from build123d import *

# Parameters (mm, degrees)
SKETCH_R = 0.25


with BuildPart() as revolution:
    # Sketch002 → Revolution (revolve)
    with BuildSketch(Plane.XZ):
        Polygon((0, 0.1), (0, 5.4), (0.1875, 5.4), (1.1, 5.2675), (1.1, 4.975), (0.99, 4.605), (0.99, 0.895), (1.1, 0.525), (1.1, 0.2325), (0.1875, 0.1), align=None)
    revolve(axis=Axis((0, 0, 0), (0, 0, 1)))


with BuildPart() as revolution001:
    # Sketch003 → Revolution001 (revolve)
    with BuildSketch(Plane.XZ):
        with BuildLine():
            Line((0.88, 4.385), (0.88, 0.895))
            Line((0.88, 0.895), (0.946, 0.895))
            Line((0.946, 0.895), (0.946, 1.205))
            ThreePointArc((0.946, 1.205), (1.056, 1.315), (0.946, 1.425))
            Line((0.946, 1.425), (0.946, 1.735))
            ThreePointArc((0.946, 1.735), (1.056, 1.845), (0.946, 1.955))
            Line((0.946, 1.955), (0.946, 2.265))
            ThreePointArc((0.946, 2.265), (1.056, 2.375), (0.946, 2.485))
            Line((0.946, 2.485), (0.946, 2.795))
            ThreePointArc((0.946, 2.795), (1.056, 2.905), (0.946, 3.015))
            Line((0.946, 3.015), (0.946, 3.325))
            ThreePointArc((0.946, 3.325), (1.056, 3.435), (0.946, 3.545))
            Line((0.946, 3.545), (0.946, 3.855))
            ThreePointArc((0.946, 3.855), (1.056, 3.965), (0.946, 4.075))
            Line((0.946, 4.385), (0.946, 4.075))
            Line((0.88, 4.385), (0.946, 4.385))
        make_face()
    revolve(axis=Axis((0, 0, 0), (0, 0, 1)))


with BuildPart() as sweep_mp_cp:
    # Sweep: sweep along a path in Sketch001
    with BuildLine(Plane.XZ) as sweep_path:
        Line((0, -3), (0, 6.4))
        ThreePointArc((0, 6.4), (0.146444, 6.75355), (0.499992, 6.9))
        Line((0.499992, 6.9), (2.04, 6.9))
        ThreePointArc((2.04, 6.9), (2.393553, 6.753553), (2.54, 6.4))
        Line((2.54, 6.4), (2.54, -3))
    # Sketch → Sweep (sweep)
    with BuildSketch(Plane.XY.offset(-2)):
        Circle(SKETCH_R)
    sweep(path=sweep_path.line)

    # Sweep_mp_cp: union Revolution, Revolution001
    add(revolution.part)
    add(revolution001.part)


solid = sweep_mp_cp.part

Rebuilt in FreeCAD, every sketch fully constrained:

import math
import FreeCAD as App
import Part
import Sketcher
from FreeCAD import Vector
Q = App.Units.Quantity

doc = App.newDocument("Part")
body = doc.addObject("PartDesign::Body", "Body")

# Sketch on XZ plane
sketch1 = body.newObject("Sketcher::SketchObject", "Sketch")
sketch1.AttachmentSupport = (doc.getObject("XZ_Plane"), [""])
sketch1.MapMode = "FlatFace"
sketch1.addGeometry([
    Part.LineSegment(Vector(0, 5.4, 0), Vector(0, 0.1, 0)),  # 0
    Part.LineSegment(Vector(0, 0.1, 0), Vector(0.1875, 0.1, 0)),  # 1
    Part.LineSegment(Vector(0.1875, 0.1, 0), Vector(1.1, 0.2325, 0)),  # 2
    Part.LineSegment(Vector(1.1, 0.2325, 0), Vector(1.1, 0.525, 0)),  # 3
    Part.LineSegment(Vector(1.1, 0.525, 0), Vector(0.99, 0.895, 0)),  # 4
    Part.LineSegment(Vector(0.99, 0.895, 0), Vector(0.99, 4.605, 0)),  # 5
    Part.LineSegment(Vector(0.99, 4.605, 0), Vector(1.1, 4.975, 0)),  # 6
    Part.LineSegment(Vector(1.1, 4.975, 0), Vector(1.1, 5.2675, 0)),  # 7
    Part.LineSegment(Vector(1.1, 5.2675, 0), Vector(0.1875, 5.4, 0)),  # 8
    Part.LineSegment(Vector(0.1875, 5.4, 0), Vector(0, 5.4, 0)),  # 9
], False)
sketch1.addConstraint([
    Sketcher.Constraint("Coincident", 0, 2, 1, 1),
    Sketcher.Constraint("Coincident", 1, 2, 2, 1),
    Sketcher.Constraint("Coincident", 2, 2, 3, 1),
    Sketcher.Constraint("Coincident", 3, 2, 4, 1),
    Sketcher.Constraint("Coincident", 4, 2, 5, 1),
    Sketcher.Constraint("Coincident", 5, 2, 6, 1),
    Sketcher.Constraint("Coincident", 6, 2, 7, 1),
    Sketcher.Constraint("Coincident", 7, 2, 8, 1),
    Sketcher.Constraint("Coincident", 8, 2, 9, 1),
    Sketcher.Constraint("Coincident", 9, 2, 0, 1),
    Sketcher.Constraint("Vertical", 0),
    Sketcher.Constraint("Horizontal", 1),
    Sketcher.Constraint("Vertical", 3),
    Sketcher.Constraint("Vertical", 5),
    Sketcher.Constraint("Vertical", 7),
    Sketcher.Constraint("Horizontal", 9),
    Sketcher.Constraint("PointOnObject", 0, 2, -2),
    Sketcher.Constraint("Vertical", 3, 2, 6, 2),
    Sketcher.Constraint("Vertical", 1, 2, 8, 2),
    Sketcher.Constraint("Equal", 3, 7),
    Sketcher.Constraint("Equal", 4, 6),
    Sketcher.Constraint("Equal", 2, 8),
    Sketcher.Constraint("DistanceY", 0, 2, 0, 1, Q("5.3 mm")),
    Sketcher.Constraint("DistanceY", 5, 1, 5, 2, Q("3.71 mm")),
    Sketcher.Constraint("DistanceY", -1, 1, 0, 2, Q("0.1 mm")),
    Sketcher.Constraint("DistanceX", -1, 1, 2, 2, Q("1.1 mm")),
    Sketcher.Constraint("DistanceX", -1, 1, 4, 2, Q("0.99 mm")),
    Sketcher.Constraint("DistanceY", 3, 2, 4, 2, Q("0.37 mm")),
    Sketcher.Constraint("DistanceX", 1, 1, 1, 2, Q("0.1875 mm")),
    Sketcher.Constraint("DistanceY", 3, 1, 3, 2, Q("0.2925 mm")),
])
revolution = body.newObject("PartDesign::Revolution", "Revolution")
revolution.Profile = sketch1
revolution.ReferenceAxis = (sketch1, ["V_Axis"])
revolution.Angle = 360
body2 = doc.addObject("PartDesign::Body", "Body001")

# Sketch on XZ plane
sketch2 = body2.newObject("Sketcher::SketchObject", "Sketch001")
sketch2.AttachmentSupport = (doc.getObject("XZ_Plane001"), [""])
sketch2.MapMode = "FlatFace"
sketch2.addGeometry([
    Part.LineSegment(Vector(0.88, 4.385, 0), Vector(0.88, 0.895, 0)),  # 0
    Part.LineSegment(Vector(0.88, 0.895, 0), Vector(0.946, 0.895, 0)),  # 1
    Part.LineSegment(Vector(0.946, 0.895, 0), Vector(0.946, 1.205, 0)),  # 2
    Part.ArcOfCircle(Part.Circle(Vector(0.946, 1.315, 0), Vector(0, 0, 1), 0.11), math.radians(-90), math.radians(90)),  # 3
    Part.LineSegment(Vector(0.946, 1.425, 0), Vector(0.946, 1.735, 0)),  # 4
    Part.ArcOfCircle(Part.Circle(Vector(0.946, 1.845, 0), Vector(0, 0, 1), 0.11), math.radians(-90), math.radians(90)),  # 5
    Part.LineSegment(Vector(0.946, 1.955, 0), Vector(0.946, 2.265, 0)),  # 6
    Part.ArcOfCircle(Part.Circle(Vector(0.946, 2.375, 0), Vector(0, 0, 1), 0.11), math.radians(-90), math.radians(90)),  # 7
    Part.LineSegment(Vector(0.946, 2.485, 0), Vector(0.946, 2.795, 0)),  # 8
    Part.ArcOfCircle(Part.Circle(Vector(0.946, 2.905, 0), Vector(0, 0, 1), 0.11), math.radians(-90), math.radians(90)),  # 9
    Part.LineSegment(Vector(0.946, 3.015, 0), Vector(0.946, 3.325, 0)),  # 10
    Part.ArcOfCircle(Part.Circle(Vector(0.946, 3.435, 0), Vector(0, 0, 1), 0.11), math.radians(-90), math.radians(90)),  # 11
    Part.LineSegment(Vector(0.946, 3.545, 0), Vector(0.946, 3.855, 0)),  # 12
    Part.ArcOfCircle(Part.Circle(Vector(0.946, 3.965, 0), Vector(0, 0, 1), 0.11), math.radians(-90), math.radians(90)),  # 13
    Part.LineSegment(Vector(0.946, 4.075, 0), Vector(0.946, 4.385, 0)),  # 14
    Part.LineSegment(Vector(0.946, 4.385, 0), Vector(0.88, 4.385, 0)),  # 15
], False)
sketch2.addConstraint([
    Sketcher.Constraint("Coincident", 0, 2, 1, 1),
    Sketcher.Constraint("Coincident", 1, 2, 2, 1),
    Sketcher.Constraint("Coincident", 2, 2, 3, 1),
    Sketcher.Constraint("Coincident", 3, 2, 4, 1),
    Sketcher.Constraint("Coincident", 4, 2, 5, 1),
    Sketcher.Constraint("Coincident", 5, 2, 6, 1),
    Sketcher.Constraint("Coincident", 6, 2, 7, 1),
    Sketcher.Constraint("Coincident", 7, 2, 8, 1),
    Sketcher.Constraint("Coincident", 8, 2, 9, 1),
    Sketcher.Constraint("Coincident", 9, 2, 10, 1),
    Sketcher.Constraint("Coincident", 10, 2, 11, 1),
    Sketcher.Constraint("Coincident", 11, 2, 12, 1),
    Sketcher.Constraint("Coincident", 12, 2, 13, 1),
    Sketcher.Constraint("Coincident", 13, 2, 14, 1),
    Sketcher.Constraint("Coincident", 14, 2, 15, 1),
    Sketcher.Constraint("Coincident", 15, 2, 0, 1),
    Sketcher.Constraint("Vertical", 0),
    Sketcher.Constraint("Horizontal", 1),
    Sketcher.Constraint("Vertical", 2),
    Sketcher.Constraint("Vertical", 4),
    Sketcher.Constraint("Vertical", 6),
    Sketcher.Constraint("Vertical", 8),
    Sketcher.Constraint("Vertical", 10),
    Sketcher.Constraint("Vertical", 12),
    Sketcher.Constraint("Vertical", 14),
    Sketcher.Constraint("Horizontal", 15),
    Sketcher.Constraint("Equal", 3, 5),
    Sketcher.Constraint("Equal", 5, 7),
    Sketcher.Constraint("Equal", 7, 9),
    Sketcher.Constraint("Equal", 9, 11),
    Sketcher.Constraint("Equal", 11, 13),
    Sketcher.Constraint("Vertical", 3, 3, 5, 3),
    Sketcher.Constraint("Vertical", 5, 3, 7, 3),
    Sketcher.Constraint("Vertical", 7, 3, 9, 3),
    Sketcher.Constraint("Vertical", 9, 3, 11, 3),
    Sketcher.Constraint("Vertical", 11, 3, 13, 3),
    Sketcher.Constraint("Vertical", 13, 3, 1, 2),
    Sketcher.Constraint("Vertical", 2, 2, 3, 2),
    Sketcher.Constraint("Vertical", 4, 2, 5, 2),
    Sketcher.Constraint("Vertical", 6, 2, 7, 2),
    Sketcher.Constraint("Vertical", 8, 2, 9, 2),
    Sketcher.Constraint("Vertical", 10, 2, 11, 2),
    Sketcher.Constraint("Vertical", 12, 2, 13, 2),
    Sketcher.Constraint("Equal", 2, 4),
    Sketcher.Constraint("Equal", 4, 6),
    Sketcher.Constraint("Equal", 6, 8),
    Sketcher.Constraint("Equal", 8, 10),
    Sketcher.Constraint("Equal", 10, 12),
    Sketcher.Constraint("Equal", 12, 14),
    Sketcher.Constraint("Radius", 3, Q("0.11 mm")),
    Sketcher.Constraint("DistanceY", 0, 2, 0, 1, Q("3.49 mm")),
    Sketcher.Constraint("DistanceX", 1, 1, 1, 2, Q("0.066 mm")),
    Sketcher.Constraint("DistanceX", -1, 1, 0, 2, Q("0.88 mm")),
    Sketcher.Constraint("DistanceY", -1, 1, 3, 3, Q("1.315 mm")),
])
revolution2 = body2.newObject("PartDesign::Revolution", "Revolution001")
revolution2.Profile = sketch2
revolution2.ReferenceAxis = (sketch2, ["V_Axis"])
revolution2.Angle = 360
body3 = doc.addObject("PartDesign::Body", "Body002")

# Sketch on XY plane
sketch3 = body3.newObject("Sketcher::SketchObject", "Sketch002")
sketch3.AttachmentSupport = (doc.getObject("XY_Plane002"), [""])
sketch3.MapMode = "FlatFace"
sketch3.AttachmentOffset = App.Placement(Vector(0, 0, -2), App.Rotation())
sketch3.addGeometry(Part.Circle(Vector(0, 0, 0), Vector(0, 0, 1), 0.25), False)
sketch3.addConstraint([
    Sketcher.Constraint("Coincident", 0, 3, -1, 1),
    Sketcher.Constraint("Diameter", 0, Q("0.5 mm")),
])

# Sketch on XZ plane
sketch4 = body3.newObject("Sketcher::SketchObject", "Sketch003")
sketch4.AttachmentSupport = (doc.getObject("XZ_Plane002"), [""])
sketch4.MapMode = "FlatFace"
sketch4.addGeometry([
    Part.LineSegment(Vector(0, -3, 0), Vector(0, 6.4, 0)),  # 0
    Part.ArcOfCircle(Part.Circle(Vector(0.500001, 6.399999, 0), Vector(0, 0, 1), 0.500001), math.radians(90.00107), math.radians(179.999847)),  # 1
    Part.LineSegment(Vector(0.499992, 6.9, 0), Vector(2.04, 6.9, 0)),  # 2
    Part.ArcOfCircle(Part.Circle(Vector(2.039999, 6.399999, 0), Vector(0, 0, 1), 0.500001), math.radians(0.000153), math.radians(89.999847)),  # 3
    Part.LineSegment(Vector(2.54, 6.4, 0), Vector(2.54, -3, 0)),  # 4
], False)
sketch4.addConstraint([
    Sketcher.Constraint("Coincident", 0, 2, 1, 2),
    Sketcher.Constraint("Coincident", 1, 1, 2, 1),
    Sketcher.Constraint("Coincident", 2, 2, 3, 2),
    Sketcher.Constraint("Coincident", 3, 1, 4, 1),
    Sketcher.Constraint("Vertical", 0),
    Sketcher.Constraint("Horizontal", 2),
    Sketcher.Constraint("Vertical", 4),
    Sketcher.Constraint("Equal", 1, 3),
    Sketcher.Constraint("PointOnObject", 0, 1, -2),
    Sketcher.Constraint("Horizontal", 3, 3, 0, 2),
    Sketcher.Constraint("Horizontal", 0, 2, 3, 1),
    Sketcher.Constraint("Horizontal", 0, 1, 4, 2),
    Sketcher.Constraint("Vertical", 3, 3, 2, 2),
    Sketcher.Constraint("Radius", 1, Q("0.500001 mm")),
    Sketcher.Constraint("DistanceY", 0, 1, 0, 2, Q("9.4 mm")),
    Sketcher.Constraint("DistanceY", 0, 1, -1, 1, Q("3 mm")),
    Sketcher.Constraint("DistanceX", -1, 1, 3, 3, Q("2.039999 mm")),
    Sketcher.Constraint("DistanceX", 2, 1, 2, 2, Q("1.540008 mm")),
])
doc.recompute()

additivepipe = body3.newObject("PartDesign::AdditivePipe", "AdditivePipe")
additivepipe.Profile = sketch3
additivepipe.Spine = (sketch4, ["Edge1", "Edge2", "Edge3", "Edge4", "Edge5"])
doc.recompute()

boolean = body3.newObject("PartDesign::Boolean", "Boolean")
boolean.Type = "Fuse"
boolean.addObjects([body])
doc.recompute()

boolean2 = body3.newObject("PartDesign::Boolean", "Boolean001")
boolean2.Type = "Fuse"
boolean2.addObjects([body2])

doc.recompute()
